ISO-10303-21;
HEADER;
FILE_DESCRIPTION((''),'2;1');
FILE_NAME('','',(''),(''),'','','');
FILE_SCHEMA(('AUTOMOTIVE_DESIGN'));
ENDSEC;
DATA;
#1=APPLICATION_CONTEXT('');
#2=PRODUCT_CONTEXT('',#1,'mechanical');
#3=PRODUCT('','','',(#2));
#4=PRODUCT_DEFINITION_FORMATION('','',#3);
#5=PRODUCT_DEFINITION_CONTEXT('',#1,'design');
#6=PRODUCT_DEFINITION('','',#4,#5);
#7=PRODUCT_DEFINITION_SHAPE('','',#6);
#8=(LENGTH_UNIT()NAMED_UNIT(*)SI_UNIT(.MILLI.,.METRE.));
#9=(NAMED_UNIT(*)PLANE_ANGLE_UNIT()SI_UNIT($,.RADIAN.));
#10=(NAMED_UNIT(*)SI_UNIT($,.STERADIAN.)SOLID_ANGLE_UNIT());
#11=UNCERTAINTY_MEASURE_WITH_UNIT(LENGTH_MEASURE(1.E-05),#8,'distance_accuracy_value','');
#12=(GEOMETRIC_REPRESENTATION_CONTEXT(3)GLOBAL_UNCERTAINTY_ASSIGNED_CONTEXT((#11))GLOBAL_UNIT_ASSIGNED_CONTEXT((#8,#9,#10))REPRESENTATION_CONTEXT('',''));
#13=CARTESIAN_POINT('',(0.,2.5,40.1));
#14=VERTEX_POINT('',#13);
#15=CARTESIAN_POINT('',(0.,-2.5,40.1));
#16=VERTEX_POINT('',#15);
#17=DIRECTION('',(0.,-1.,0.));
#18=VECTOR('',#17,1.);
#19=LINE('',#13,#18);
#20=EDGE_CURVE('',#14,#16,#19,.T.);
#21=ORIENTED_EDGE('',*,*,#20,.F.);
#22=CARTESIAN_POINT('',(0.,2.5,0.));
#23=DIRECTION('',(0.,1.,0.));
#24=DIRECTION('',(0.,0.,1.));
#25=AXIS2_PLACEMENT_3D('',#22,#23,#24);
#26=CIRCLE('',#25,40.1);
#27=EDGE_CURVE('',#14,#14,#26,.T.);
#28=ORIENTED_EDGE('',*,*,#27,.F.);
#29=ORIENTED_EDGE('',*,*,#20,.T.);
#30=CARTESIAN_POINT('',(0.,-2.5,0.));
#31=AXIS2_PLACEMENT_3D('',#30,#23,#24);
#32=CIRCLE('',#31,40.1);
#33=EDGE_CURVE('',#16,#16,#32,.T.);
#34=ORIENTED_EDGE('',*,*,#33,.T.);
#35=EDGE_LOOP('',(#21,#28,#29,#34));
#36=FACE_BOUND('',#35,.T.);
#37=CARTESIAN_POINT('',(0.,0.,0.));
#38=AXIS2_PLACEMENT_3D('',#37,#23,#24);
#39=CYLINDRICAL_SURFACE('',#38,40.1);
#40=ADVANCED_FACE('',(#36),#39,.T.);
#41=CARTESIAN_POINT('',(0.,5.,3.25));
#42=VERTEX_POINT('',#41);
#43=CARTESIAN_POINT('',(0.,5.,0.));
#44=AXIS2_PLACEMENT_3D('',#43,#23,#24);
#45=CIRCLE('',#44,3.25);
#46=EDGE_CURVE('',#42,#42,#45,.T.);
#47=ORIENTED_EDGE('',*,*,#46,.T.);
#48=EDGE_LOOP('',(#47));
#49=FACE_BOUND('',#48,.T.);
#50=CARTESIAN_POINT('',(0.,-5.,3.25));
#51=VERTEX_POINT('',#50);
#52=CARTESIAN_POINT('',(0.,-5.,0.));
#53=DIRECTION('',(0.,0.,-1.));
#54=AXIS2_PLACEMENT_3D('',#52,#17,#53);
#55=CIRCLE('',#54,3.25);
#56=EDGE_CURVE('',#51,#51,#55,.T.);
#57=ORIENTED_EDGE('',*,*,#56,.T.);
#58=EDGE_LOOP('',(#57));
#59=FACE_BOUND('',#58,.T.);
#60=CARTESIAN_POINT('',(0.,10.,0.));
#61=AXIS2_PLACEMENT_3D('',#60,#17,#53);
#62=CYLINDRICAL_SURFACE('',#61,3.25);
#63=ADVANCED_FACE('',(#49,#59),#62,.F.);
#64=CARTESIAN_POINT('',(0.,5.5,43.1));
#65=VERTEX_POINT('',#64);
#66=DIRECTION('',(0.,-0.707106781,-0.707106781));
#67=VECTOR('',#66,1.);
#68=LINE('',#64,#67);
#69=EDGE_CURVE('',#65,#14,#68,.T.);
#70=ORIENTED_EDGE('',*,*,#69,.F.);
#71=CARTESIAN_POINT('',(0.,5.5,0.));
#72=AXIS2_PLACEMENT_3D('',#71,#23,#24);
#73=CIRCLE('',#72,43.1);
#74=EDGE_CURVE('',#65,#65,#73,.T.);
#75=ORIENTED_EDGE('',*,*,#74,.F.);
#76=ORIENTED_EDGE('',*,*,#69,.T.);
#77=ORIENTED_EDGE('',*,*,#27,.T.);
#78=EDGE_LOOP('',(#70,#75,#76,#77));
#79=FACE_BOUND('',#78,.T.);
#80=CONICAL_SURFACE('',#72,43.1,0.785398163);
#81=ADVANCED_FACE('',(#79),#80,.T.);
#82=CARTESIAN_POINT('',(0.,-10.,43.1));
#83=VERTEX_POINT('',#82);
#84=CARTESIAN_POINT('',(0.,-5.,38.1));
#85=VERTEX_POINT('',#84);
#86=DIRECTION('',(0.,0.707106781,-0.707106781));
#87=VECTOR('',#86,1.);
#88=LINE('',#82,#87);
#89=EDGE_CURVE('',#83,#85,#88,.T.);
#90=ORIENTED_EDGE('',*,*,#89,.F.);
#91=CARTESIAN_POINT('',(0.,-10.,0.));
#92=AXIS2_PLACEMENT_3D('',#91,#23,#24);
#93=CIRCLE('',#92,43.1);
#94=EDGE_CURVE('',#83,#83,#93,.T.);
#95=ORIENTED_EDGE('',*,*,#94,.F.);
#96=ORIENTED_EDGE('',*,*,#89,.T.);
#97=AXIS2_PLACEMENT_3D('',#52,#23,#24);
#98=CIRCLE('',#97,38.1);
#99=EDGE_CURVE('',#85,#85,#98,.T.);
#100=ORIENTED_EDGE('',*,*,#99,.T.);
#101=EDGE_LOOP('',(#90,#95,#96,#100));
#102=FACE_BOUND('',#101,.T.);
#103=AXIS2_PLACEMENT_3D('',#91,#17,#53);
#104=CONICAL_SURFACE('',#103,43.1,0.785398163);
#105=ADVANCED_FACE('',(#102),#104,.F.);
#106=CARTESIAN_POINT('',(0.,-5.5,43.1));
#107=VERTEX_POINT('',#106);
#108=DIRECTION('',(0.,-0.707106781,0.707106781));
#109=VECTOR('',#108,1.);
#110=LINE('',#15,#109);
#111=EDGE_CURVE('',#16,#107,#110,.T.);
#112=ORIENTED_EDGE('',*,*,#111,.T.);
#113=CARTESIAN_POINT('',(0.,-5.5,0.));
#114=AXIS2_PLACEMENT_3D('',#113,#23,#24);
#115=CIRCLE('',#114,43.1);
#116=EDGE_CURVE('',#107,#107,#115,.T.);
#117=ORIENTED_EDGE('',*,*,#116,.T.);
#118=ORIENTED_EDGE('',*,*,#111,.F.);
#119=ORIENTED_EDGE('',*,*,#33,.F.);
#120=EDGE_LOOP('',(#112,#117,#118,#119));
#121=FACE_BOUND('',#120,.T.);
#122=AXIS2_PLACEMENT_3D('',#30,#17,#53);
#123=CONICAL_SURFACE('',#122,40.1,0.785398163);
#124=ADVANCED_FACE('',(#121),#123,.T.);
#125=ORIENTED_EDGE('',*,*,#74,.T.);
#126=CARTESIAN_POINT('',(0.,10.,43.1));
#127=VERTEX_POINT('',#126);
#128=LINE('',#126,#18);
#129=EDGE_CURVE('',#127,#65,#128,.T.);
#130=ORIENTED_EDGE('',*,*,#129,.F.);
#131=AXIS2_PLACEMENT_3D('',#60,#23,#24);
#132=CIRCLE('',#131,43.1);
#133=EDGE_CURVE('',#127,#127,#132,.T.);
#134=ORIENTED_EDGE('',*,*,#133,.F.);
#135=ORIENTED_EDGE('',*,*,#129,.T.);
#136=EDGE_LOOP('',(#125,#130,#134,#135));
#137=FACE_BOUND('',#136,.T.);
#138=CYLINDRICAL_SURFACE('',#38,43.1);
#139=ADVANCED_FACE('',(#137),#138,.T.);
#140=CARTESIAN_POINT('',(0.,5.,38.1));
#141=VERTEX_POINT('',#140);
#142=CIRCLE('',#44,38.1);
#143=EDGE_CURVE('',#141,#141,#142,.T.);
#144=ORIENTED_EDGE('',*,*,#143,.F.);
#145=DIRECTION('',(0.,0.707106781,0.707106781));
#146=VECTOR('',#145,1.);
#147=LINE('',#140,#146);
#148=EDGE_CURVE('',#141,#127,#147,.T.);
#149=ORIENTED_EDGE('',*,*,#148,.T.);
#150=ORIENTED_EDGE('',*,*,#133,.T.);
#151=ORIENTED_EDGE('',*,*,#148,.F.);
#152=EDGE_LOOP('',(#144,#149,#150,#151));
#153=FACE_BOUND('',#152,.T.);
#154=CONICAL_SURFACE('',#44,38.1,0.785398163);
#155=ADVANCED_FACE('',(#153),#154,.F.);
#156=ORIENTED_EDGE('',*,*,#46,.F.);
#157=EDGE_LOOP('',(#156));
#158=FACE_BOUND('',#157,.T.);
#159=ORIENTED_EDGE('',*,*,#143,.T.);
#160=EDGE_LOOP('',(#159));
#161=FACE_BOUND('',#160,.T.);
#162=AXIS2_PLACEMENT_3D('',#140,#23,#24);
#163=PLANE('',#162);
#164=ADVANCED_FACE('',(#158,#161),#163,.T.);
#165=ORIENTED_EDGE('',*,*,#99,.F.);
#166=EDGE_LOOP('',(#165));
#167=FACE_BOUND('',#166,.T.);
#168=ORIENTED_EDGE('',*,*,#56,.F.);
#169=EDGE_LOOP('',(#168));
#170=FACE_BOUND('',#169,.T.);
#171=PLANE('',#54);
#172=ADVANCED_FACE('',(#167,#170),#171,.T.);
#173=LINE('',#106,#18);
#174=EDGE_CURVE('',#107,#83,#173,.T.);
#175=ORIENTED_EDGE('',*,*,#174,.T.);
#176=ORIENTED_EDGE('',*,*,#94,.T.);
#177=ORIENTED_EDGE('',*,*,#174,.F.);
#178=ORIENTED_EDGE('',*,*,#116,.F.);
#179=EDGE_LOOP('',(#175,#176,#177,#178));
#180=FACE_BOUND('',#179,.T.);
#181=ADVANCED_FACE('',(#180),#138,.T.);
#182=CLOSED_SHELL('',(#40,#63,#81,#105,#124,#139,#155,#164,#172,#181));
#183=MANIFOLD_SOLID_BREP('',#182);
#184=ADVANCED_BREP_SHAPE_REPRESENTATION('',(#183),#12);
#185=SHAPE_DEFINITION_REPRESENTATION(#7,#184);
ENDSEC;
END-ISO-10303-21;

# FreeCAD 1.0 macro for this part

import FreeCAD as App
import Part
import Sketcher
from FreeCAD import Vector
Q = App.Units.Quantity

doc = App.newDocument("Part")
body = doc.addObject("PartDesign::Body", "Body")

sketch1 = body.newObject("Sketcher::SketchObject", "Sketch")
sketch1.AttachmentSupport = (doc.getObject("YZ_Plane"), [""])
sketch1.MapMode = "FlatFace"
sketch1.addGeometry([
    Part.LineSegment(Vector(5, 38.1, 0), Vector(10, 43.1, 0)),
    Part.LineSegment(Vector(10, 43.1, 0), Vector(5.5, 43.1, 0)),
    Part.LineSegment(Vector(5.5, 43.1, 0), Vector(2.5, 40.1, 0)),
    Part.LineSegment(Vector(2.5, 40.1, 0), Vector(-2.5, 40.1, 0)),
    Part.LineSegment(Vector(-2.5, 40.1, 0), Vector(-5.5, 43.1, 0)),
    Part.LineSegment(Vector(-5.5, 43.1, 0), Vector(-10, 43.1, 0)),
    Part.LineSegment(Vector(-10, 43.1, 0), Vector(-5, 38.1, 0)),
    Part.LineSegment(Vector(-5, 38.1, 0), Vector(-5, 0, 0)),
    Part.LineSegment(Vector(-5, 0, 0), Vector(5, 0, 0)),
    Part.LineSegment(Vector(5, 0, 0), Vector(5, 38.1, 0)),
], False)
sketch1.addConstraint([
    Sketcher.Constraint("Coincident", 0, 2, 1, 1),
    Sketcher.Constraint("Coincident", 1, 2, 2, 1),
    Sketcher.Constraint("Coincident", 2, 2, 3, 1),
    Sketcher.Constraint("Coincident", 3, 2, 4, 1),
    Sketcher.Constraint("Coincident", 4, 2, 5, 1),
    Sketcher.Constraint("Coincident", 5, 2, 6, 1),
    Sketcher.Constraint("Coincident", 6, 2, 7, 1),
    Sketcher.Constraint("Coincident", 7, 2, 8, 1),
    Sketcher.Constraint("Coincident", 8, 2, 9, 1),
    Sketcher.Constraint("Coincident", 9, 2, 0, 1),
    Sketcher.Constraint("Horizontal", 1),
    Sketcher.Constraint("Horizontal", 3),
    Sketcher.Constraint("Horizontal", 5),
    Sketcher.Constraint("Vertical", 7),
    Sketcher.Constraint("Horizontal", 8),
    Sketcher.Constraint("Vertical", 9),
    Sketcher.Constraint("Symmetric", 7, 2, 8, 2, -1, 1),
    Sketcher.Constraint("Symmetric", 1, 2, 4, 2, -2),
    Sketcher.Constraint("Parallel", 0, 2),
    Sketcher.Constraint("Perpendicular", 2, 4),
    Sketcher.Constraint("Parallel", 4, 6),
    Sketcher.Constraint("Horizontal", 6, 2, 9, 2),
    Sketcher.Constraint("Equal", 1, 5),
    Sketcher.Constraint("DistanceX", 3, 2, 3, 1, Q("5 mm")),
    Sketcher.Constraint("DistanceX", 8, 1, 8, 2, Q("10 mm")),
    Sketcher.Constraint("DistanceX", 1, 2, 1, 1, Q("4.5 mm")),
    Sketcher.Constraint("DistanceY", 7, 2, 7, 1, Q("38.1 mm")),
    Sketcher.Constraint("DistanceX", -1, 1, 0, 2, Q("10 mm")),
])

sketch2 = body.newObject("Sketcher::SketchObject", "Sketch001")
sketch2.AttachmentSupport = (doc.getObject("XZ_Plane"), [""])
sketch2.MapMode = "FlatFace"
sketch2.addGeometry(Part.Circle(Vector(0, 0, 0), Vector(0, 0, 1), 38.1), False)
sketch2.addConstraint([
    Sketcher.Constraint("Coincident", 0, 3, -1, 1),
    Sketcher.Constraint("Diameter", 0, Q("76.2 mm")),
])
doc.recompute()

additivepipe = body.newObject("PartDesign::AdditivePipe", "AdditivePipe")
additivepipe.Profile = sketch1
additivepipe.Spine = (sketch2, ["Edge1"])

sketch3 = body.newObject("Sketcher::SketchObject", "Sketch002")
sketch3.AttachmentSupport = (doc.getObject("XZ_Plane"), [""])
sketch3.MapMode = "FlatFace"
sketch3.AttachmentOffset = App.Placement(Vector(0, 0, 5), App.Rotation())
sketch3.addGeometry(Part.Circle(Vector(0, 0, 0), Vector(0, 0, 1), 3.25), False)
sketch3.addConstraint([
    Sketcher.Constraint("Coincident", 0, 3, -1, 1),
    Sketcher.Constraint("Diameter", 0, Q("6.5 mm")),
])
pocket1 = body.newObject("PartDesign::Pocket", "Pocket")
pocket1.Profile = sketch3
pocket1.Type = "ThroughAll"
pocket1.Midplane = True

doc.recompute()
